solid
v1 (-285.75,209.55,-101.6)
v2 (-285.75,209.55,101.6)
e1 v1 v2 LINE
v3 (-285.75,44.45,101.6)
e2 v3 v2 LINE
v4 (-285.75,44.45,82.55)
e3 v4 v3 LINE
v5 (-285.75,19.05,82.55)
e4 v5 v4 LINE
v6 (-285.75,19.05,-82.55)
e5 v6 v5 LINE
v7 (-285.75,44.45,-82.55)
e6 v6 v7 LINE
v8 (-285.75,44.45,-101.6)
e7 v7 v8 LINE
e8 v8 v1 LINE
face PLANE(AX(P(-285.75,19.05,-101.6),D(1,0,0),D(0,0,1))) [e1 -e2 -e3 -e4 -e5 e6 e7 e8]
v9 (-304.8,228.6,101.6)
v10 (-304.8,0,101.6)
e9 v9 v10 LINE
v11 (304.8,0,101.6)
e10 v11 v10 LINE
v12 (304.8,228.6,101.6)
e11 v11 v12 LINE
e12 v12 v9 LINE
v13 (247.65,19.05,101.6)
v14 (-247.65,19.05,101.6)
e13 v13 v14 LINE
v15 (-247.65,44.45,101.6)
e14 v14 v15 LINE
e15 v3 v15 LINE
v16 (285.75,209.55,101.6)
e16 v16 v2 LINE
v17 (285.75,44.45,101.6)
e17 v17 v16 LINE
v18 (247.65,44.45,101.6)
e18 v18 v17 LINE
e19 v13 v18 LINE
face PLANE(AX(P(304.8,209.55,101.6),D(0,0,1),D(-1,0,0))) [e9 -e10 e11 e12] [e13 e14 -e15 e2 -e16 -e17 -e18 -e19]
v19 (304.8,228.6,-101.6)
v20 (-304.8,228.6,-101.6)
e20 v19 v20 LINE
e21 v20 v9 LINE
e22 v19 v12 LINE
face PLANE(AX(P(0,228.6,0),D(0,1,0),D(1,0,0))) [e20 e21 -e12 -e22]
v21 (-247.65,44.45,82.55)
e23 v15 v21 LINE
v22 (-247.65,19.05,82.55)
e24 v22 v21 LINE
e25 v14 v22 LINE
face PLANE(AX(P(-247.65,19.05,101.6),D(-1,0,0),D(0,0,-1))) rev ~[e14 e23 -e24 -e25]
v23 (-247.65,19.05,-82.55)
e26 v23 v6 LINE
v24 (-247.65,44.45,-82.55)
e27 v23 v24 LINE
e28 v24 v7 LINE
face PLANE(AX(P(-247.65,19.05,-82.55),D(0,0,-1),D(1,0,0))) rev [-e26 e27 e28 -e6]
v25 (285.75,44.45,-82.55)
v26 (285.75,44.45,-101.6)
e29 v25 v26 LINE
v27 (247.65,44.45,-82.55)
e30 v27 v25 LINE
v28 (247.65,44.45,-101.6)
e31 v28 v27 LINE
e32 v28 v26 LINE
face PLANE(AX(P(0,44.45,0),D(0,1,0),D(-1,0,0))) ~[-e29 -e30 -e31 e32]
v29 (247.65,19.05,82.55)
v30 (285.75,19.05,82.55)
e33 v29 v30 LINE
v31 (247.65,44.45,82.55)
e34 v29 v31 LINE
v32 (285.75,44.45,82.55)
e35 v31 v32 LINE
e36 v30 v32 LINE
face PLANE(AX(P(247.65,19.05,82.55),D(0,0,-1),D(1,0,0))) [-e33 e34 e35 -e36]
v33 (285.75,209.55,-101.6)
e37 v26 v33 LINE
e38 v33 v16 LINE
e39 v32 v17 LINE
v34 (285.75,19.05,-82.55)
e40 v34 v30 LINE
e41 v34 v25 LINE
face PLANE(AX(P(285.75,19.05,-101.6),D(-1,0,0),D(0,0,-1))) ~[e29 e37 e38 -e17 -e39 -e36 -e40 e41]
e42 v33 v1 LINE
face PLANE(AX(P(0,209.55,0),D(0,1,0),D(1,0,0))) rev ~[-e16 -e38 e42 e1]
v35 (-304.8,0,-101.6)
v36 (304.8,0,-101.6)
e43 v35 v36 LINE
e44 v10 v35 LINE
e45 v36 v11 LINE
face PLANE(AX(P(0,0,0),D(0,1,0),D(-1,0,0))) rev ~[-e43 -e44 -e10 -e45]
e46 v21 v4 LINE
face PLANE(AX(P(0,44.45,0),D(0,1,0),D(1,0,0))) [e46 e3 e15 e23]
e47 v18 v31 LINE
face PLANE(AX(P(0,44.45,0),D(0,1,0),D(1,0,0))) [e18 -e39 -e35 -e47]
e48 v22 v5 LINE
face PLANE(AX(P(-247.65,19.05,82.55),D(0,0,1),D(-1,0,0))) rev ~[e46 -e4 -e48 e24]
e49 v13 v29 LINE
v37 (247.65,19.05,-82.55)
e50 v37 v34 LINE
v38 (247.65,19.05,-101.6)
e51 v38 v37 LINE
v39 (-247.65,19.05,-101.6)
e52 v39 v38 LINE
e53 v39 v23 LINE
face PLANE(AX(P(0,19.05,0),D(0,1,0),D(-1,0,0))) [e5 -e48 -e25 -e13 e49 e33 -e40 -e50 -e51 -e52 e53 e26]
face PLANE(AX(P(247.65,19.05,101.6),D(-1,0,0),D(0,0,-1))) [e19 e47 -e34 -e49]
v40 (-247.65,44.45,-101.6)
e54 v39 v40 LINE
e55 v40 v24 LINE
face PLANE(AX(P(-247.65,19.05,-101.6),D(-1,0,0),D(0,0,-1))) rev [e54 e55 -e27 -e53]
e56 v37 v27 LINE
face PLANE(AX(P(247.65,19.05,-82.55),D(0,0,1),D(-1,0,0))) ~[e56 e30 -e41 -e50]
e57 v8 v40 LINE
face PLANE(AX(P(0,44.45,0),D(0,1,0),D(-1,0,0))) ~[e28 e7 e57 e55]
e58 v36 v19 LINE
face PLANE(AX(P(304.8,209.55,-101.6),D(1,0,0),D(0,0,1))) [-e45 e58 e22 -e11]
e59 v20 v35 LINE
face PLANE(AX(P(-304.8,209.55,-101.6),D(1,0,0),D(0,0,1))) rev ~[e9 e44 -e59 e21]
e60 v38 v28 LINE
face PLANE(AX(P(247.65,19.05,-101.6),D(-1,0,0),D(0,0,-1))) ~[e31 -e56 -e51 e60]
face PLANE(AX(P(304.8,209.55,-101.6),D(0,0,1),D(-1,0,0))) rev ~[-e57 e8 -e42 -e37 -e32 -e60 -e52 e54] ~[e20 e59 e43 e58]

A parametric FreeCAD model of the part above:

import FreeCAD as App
import Part
import Sketcher
Q = App.Units.Quantity

doc = App.newDocument("Part")
body = doc.addObject("PartDesign::Body", "Body")

sketch1 = body.newObject("Sketcher::SketchObject", "Sketch")
sketch1.AttachmentSupport = (doc.getObject("XZ_Plane"), [""])
sketch1.MapMode = "FlatFace"
sketch1.addGeometry([
    Part.LineSegment(App.Vector(-304.8, 101.6, 0), App.Vector(304.8, 101.6, 0)),
    Part.LineSegment(App.Vector(304.8, 101.6, 0), App.Vector(304.8, -101.6, 0)),
    Part.LineSegment(App.Vector(304.8, -101.6, 0), App.Vector(-304.8, -101.6, 0)),
    Part.LineSegment(App.Vector(-304.8, -101.6, 0), App.Vector(-304.8, 101.6, 0)),
], False)
sketch1.addConstraint([
    Sketcher.Constraint("Coincident", 0, 2, 1, 1),
    Sketcher.Constraint("Coincident", 1, 2, 2, 1),
    Sketcher.Constraint("Coincident", 2, 2, 3, 1),
    Sketcher.Constraint("Coincident", 3, 2, 0, 1),
    Sketcher.Constraint("Horizontal", 0),
    Sketcher.Constraint("Vertical", 1),
    Sketcher.Constraint("Horizontal", 2),
    Sketcher.Constraint("Vertical", 3),
    Sketcher.Constraint("Symmetric", 0, 2, 2, 2, -1, 1),
    Sketcher.Constraint("DistanceX", 0, 1, 0, 2, Q("24 in")),
    Sketcher.Constraint("DistanceY", 1, 2, 1, 1, Q("8 in")),
])
pad1 = body.newObject("PartDesign::Pad", "Pad")
pad1.Profile = sketch1
pad1.Length = Q("0.75 in")
pad1.Reversed = True

sketch2 = body.newObject("Sketcher::SketchObject", "Sketch001")
sketch2.AttachmentSupport = (doc.getObject("XZ_Plane"), [""])
sketch2.MapMode = "FlatFace"
sketch2.AttachmentOffset = App.Placement(App.Vector(0, 0, -0.75 * 25.4), App.Rotation())
sketch2.addGeometry([
    Part.LineSegment(App.Vector(-304.8, -101.6, 0), App.Vector(-304.8, 101.6, 0)),
    Part.LineSegment(App.Vector(-304.8, 101.6, 0), App.Vector(-285.75, 101.6, 0)),
    Part.LineSegment(App.Vector(-285.75, 101.6, 0), App.Vector(-285.75, -101.6, 0)),
    Part.LineSegment(App.Vector(-285.75, -101.6, 0), App.Vector(-304.8, -101.6, 0)),
], False)
sketch2.addConstraint([
    Sketcher.Constraint("Coincident", 0, 2, 1, 1),
    Sketcher.Constraint("Coincident", 1, 2, 2, 1),
    Sketcher.Constraint("Coincident", 2, 2, 3, 1),
    Sketcher.Constraint("Coincident", 3, 2, 0, 1),
    Sketcher.Constraint("Vertical", 0),
    Sketcher.Constraint("Horizontal", 1),
    Sketcher.Constraint("Vertical", 2),
    Sketcher.Constraint("Horizontal", 3),
    Sketcher.Constraint("DistanceX", 1, 1, 1, 2, Q("0.75 in")),
    Sketcher.Constraint("DistanceY", 0, 1, 0, 2, Q("8 in")),
    Sketcher.Constraint("DistanceX", 0, 2, -1, 1, Q("12 in")),
    Sketcher.Constraint("DistanceY", -1, 1, 0, 2, Q("4 in")),
])
pad2 = body.newObject("PartDesign::Pad", "Pad001")
pad2.Profile = sketch2
pad2.Length = Q("7.5 in")
pad2.Reversed = True
doc.recompute()

mirrored = body.newObject("PartDesign::Mirrored", "Mirrored")
mirrored.Originals = [pad2]
mirrored.MirrorPlane = (doc.getObject("YZ_Plane"), [""])
body.Tip = mirrored

sketch3 = body.newObject("Sketcher::SketchObject", "Sketch002")
sketch3.AttachmentSupport = (doc.getObject("XZ_Plane"), [""])
sketch3.MapMode = "FlatFace"
sketch3.AttachmentOffset = App.Placement(App.Vector(0, 0, -0.75 * 25.4), App.Rotation())
sketch3.addGeometry([
    Part.LineSegment(App.Vector(-285.75, 82.55, 0), App.Vector(-285.75, 101.6, 0)),
    Part.LineSegment(App.Vector(-285.75, 101.6, 0), App.Vector(-247.65, 101.6, 0)),
    Part.LineSegment(App.Vector(-247.65, 101.6, 0), App.Vector(-247.65, 82.55, 0)),
    Part.LineSegment(App.Vector(-247.65, 82.55, 0), App.Vector(-285.75, 82.55, 0)),
    Part.LineSegment(App.Vector(247.65, 82.55, 0), App.Vector(247.65, 101.6, 0)),
    Part.LineSegment(App.Vector(247.65, 101.6, 0), App.Vector(285.75, 101.6, 0)),
    Part.LineSegment(App.Vector(285.75, 101.6, 0), App.Vector(285.75, 82.55, 0)),
    Part.LineSegment(App.Vector(285.75, 82.55, 0), App.Vector(247.65, 82.55, 0)),
], False)
sketch3.addConstraint([
    Sketcher.Constraint("Coincident", 0, 2, 1, 1),
    Sketcher.Constraint("Coincident", 1, 2, 2, 1),
    Sketcher.Constraint("Coincident", 2, 2, 3, 1),
    Sketcher.Constraint("Coincident", 3, 2, 0, 1),
    Sketcher.Constraint("Coincident", 4, 2, 5, 1),
    Sketcher.Constraint("Coincident", 5, 2, 6, 1),
    Sketcher.Constraint("Coincident", 6, 2, 7, 1),
    Sketcher.Constraint("Coincident", 7, 2, 4, 1),
    Sketcher.Constraint("Vertical", 0),
    Sketcher.Constraint("Horizontal", 1),
    Sketcher.Constraint("Vertical", 2),
    Sketcher.Constraint("Horizontal", 3),
    Sketcher.Constraint("Vertical", 4),
    Sketcher.Constraint("Horizontal", 5),
    Sketcher.Constraint("Vertical", 6),
    Sketcher.Constraint("Horizontal", 7),
    Sketcher.Constraint("Symmetric", 1, 2, 4, 2, -2),
    Sketcher.Constraint("Symmetric", 3, 2, 6, 2, -2),
    Sketcher.Constraint("DistanceX", 1, 1, 1, 2, Q("1.5 in")),
    Sketcher.Constraint("DistanceY", 0, 1, 0, 2, Q("0.75 in")),
    Sketcher.Constraint("DistanceY", -1, 1, 0, 2, Q("4 in")),
    Sketcher.Constraint("DistanceX", 0, 2, 4, 2, Q("21 in")),
])
pad3 = body.newObject("PartDesign::Pad", "Pad002")
pad3.Profile = sketch3
pad3.Length = Q("1 in")
pad3.Reversed = True
doc.recompute()

mirrored2 = body.newObject("PartDesign::Mirrored", "Mirrored001")
mirrored2.Originals = [pad3]
mirrored2.MirrorPlane = (doc.getObject("XY_Plane"), [""])
body.Tip = mirrored2

sketch4 = body.newObject("Sketcher::SketchObject", "Sketch003")
sketch4.AttachmentSupport = (doc.getObject("XZ_Plane"), [""])
sketch4.MapMode = "FlatFace"
sketch4.AttachmentOffset = App.Placement(App.Vector(0, 0, -8.25 * 25.4), App.Rotation())
sketch4.addGeometry([
    Part.LineSegment(App.Vector(-304.8, 101.6, 0), App.Vector(304.8, 101.6, 0)),
    Part.LineSegment(App.Vector(304.8, 101.6, 0), App.Vector(304.8, -101.6, 0)),
    Part.LineSegment(App.Vector(304.8, -101.6, 0), App.Vector(-304.8, -101.6, 0)),
    Part.LineSegment(App.Vector(-304.8, -101.6, 0), App.Vector(-304.8, 101.6, 0)),
], False)
sketch4.addConstraint([
    Sketcher.Constraint("Coincident", 0, 2, 1, 1),
    Sketcher.Constraint("Coincident", 1, 2, 2, 1),
    Sketcher.Constraint("Coincident", 2, 2, 3, 1),
    Sketcher.Constraint("Coincident", 3, 2, 0, 1),
    Sketcher.Constraint("Horizontal", 0),
    Sketcher.Constraint("Vertical", 1),
    Sketcher.Constraint("Horizontal", 2),
    Sketcher.Constraint("Vertical", 3),
    Sketcher.Constraint("Symmetric", 0, 2, 2, 2, -1, 1),
    Sketcher.Constraint("DistanceX", 0, 1, 0, 2, Q("24 in")),
    Sketcher.Constraint("DistanceY", 1, 2, 1, 1, Q("8 in")),
])
pad4 = body.newObject("PartDesign::Pad", "Pad003")
pad4.Profile = sketch4
pad4.Length = Q("0.75 in")
pad4.Reversed = True

doc.recompute()
